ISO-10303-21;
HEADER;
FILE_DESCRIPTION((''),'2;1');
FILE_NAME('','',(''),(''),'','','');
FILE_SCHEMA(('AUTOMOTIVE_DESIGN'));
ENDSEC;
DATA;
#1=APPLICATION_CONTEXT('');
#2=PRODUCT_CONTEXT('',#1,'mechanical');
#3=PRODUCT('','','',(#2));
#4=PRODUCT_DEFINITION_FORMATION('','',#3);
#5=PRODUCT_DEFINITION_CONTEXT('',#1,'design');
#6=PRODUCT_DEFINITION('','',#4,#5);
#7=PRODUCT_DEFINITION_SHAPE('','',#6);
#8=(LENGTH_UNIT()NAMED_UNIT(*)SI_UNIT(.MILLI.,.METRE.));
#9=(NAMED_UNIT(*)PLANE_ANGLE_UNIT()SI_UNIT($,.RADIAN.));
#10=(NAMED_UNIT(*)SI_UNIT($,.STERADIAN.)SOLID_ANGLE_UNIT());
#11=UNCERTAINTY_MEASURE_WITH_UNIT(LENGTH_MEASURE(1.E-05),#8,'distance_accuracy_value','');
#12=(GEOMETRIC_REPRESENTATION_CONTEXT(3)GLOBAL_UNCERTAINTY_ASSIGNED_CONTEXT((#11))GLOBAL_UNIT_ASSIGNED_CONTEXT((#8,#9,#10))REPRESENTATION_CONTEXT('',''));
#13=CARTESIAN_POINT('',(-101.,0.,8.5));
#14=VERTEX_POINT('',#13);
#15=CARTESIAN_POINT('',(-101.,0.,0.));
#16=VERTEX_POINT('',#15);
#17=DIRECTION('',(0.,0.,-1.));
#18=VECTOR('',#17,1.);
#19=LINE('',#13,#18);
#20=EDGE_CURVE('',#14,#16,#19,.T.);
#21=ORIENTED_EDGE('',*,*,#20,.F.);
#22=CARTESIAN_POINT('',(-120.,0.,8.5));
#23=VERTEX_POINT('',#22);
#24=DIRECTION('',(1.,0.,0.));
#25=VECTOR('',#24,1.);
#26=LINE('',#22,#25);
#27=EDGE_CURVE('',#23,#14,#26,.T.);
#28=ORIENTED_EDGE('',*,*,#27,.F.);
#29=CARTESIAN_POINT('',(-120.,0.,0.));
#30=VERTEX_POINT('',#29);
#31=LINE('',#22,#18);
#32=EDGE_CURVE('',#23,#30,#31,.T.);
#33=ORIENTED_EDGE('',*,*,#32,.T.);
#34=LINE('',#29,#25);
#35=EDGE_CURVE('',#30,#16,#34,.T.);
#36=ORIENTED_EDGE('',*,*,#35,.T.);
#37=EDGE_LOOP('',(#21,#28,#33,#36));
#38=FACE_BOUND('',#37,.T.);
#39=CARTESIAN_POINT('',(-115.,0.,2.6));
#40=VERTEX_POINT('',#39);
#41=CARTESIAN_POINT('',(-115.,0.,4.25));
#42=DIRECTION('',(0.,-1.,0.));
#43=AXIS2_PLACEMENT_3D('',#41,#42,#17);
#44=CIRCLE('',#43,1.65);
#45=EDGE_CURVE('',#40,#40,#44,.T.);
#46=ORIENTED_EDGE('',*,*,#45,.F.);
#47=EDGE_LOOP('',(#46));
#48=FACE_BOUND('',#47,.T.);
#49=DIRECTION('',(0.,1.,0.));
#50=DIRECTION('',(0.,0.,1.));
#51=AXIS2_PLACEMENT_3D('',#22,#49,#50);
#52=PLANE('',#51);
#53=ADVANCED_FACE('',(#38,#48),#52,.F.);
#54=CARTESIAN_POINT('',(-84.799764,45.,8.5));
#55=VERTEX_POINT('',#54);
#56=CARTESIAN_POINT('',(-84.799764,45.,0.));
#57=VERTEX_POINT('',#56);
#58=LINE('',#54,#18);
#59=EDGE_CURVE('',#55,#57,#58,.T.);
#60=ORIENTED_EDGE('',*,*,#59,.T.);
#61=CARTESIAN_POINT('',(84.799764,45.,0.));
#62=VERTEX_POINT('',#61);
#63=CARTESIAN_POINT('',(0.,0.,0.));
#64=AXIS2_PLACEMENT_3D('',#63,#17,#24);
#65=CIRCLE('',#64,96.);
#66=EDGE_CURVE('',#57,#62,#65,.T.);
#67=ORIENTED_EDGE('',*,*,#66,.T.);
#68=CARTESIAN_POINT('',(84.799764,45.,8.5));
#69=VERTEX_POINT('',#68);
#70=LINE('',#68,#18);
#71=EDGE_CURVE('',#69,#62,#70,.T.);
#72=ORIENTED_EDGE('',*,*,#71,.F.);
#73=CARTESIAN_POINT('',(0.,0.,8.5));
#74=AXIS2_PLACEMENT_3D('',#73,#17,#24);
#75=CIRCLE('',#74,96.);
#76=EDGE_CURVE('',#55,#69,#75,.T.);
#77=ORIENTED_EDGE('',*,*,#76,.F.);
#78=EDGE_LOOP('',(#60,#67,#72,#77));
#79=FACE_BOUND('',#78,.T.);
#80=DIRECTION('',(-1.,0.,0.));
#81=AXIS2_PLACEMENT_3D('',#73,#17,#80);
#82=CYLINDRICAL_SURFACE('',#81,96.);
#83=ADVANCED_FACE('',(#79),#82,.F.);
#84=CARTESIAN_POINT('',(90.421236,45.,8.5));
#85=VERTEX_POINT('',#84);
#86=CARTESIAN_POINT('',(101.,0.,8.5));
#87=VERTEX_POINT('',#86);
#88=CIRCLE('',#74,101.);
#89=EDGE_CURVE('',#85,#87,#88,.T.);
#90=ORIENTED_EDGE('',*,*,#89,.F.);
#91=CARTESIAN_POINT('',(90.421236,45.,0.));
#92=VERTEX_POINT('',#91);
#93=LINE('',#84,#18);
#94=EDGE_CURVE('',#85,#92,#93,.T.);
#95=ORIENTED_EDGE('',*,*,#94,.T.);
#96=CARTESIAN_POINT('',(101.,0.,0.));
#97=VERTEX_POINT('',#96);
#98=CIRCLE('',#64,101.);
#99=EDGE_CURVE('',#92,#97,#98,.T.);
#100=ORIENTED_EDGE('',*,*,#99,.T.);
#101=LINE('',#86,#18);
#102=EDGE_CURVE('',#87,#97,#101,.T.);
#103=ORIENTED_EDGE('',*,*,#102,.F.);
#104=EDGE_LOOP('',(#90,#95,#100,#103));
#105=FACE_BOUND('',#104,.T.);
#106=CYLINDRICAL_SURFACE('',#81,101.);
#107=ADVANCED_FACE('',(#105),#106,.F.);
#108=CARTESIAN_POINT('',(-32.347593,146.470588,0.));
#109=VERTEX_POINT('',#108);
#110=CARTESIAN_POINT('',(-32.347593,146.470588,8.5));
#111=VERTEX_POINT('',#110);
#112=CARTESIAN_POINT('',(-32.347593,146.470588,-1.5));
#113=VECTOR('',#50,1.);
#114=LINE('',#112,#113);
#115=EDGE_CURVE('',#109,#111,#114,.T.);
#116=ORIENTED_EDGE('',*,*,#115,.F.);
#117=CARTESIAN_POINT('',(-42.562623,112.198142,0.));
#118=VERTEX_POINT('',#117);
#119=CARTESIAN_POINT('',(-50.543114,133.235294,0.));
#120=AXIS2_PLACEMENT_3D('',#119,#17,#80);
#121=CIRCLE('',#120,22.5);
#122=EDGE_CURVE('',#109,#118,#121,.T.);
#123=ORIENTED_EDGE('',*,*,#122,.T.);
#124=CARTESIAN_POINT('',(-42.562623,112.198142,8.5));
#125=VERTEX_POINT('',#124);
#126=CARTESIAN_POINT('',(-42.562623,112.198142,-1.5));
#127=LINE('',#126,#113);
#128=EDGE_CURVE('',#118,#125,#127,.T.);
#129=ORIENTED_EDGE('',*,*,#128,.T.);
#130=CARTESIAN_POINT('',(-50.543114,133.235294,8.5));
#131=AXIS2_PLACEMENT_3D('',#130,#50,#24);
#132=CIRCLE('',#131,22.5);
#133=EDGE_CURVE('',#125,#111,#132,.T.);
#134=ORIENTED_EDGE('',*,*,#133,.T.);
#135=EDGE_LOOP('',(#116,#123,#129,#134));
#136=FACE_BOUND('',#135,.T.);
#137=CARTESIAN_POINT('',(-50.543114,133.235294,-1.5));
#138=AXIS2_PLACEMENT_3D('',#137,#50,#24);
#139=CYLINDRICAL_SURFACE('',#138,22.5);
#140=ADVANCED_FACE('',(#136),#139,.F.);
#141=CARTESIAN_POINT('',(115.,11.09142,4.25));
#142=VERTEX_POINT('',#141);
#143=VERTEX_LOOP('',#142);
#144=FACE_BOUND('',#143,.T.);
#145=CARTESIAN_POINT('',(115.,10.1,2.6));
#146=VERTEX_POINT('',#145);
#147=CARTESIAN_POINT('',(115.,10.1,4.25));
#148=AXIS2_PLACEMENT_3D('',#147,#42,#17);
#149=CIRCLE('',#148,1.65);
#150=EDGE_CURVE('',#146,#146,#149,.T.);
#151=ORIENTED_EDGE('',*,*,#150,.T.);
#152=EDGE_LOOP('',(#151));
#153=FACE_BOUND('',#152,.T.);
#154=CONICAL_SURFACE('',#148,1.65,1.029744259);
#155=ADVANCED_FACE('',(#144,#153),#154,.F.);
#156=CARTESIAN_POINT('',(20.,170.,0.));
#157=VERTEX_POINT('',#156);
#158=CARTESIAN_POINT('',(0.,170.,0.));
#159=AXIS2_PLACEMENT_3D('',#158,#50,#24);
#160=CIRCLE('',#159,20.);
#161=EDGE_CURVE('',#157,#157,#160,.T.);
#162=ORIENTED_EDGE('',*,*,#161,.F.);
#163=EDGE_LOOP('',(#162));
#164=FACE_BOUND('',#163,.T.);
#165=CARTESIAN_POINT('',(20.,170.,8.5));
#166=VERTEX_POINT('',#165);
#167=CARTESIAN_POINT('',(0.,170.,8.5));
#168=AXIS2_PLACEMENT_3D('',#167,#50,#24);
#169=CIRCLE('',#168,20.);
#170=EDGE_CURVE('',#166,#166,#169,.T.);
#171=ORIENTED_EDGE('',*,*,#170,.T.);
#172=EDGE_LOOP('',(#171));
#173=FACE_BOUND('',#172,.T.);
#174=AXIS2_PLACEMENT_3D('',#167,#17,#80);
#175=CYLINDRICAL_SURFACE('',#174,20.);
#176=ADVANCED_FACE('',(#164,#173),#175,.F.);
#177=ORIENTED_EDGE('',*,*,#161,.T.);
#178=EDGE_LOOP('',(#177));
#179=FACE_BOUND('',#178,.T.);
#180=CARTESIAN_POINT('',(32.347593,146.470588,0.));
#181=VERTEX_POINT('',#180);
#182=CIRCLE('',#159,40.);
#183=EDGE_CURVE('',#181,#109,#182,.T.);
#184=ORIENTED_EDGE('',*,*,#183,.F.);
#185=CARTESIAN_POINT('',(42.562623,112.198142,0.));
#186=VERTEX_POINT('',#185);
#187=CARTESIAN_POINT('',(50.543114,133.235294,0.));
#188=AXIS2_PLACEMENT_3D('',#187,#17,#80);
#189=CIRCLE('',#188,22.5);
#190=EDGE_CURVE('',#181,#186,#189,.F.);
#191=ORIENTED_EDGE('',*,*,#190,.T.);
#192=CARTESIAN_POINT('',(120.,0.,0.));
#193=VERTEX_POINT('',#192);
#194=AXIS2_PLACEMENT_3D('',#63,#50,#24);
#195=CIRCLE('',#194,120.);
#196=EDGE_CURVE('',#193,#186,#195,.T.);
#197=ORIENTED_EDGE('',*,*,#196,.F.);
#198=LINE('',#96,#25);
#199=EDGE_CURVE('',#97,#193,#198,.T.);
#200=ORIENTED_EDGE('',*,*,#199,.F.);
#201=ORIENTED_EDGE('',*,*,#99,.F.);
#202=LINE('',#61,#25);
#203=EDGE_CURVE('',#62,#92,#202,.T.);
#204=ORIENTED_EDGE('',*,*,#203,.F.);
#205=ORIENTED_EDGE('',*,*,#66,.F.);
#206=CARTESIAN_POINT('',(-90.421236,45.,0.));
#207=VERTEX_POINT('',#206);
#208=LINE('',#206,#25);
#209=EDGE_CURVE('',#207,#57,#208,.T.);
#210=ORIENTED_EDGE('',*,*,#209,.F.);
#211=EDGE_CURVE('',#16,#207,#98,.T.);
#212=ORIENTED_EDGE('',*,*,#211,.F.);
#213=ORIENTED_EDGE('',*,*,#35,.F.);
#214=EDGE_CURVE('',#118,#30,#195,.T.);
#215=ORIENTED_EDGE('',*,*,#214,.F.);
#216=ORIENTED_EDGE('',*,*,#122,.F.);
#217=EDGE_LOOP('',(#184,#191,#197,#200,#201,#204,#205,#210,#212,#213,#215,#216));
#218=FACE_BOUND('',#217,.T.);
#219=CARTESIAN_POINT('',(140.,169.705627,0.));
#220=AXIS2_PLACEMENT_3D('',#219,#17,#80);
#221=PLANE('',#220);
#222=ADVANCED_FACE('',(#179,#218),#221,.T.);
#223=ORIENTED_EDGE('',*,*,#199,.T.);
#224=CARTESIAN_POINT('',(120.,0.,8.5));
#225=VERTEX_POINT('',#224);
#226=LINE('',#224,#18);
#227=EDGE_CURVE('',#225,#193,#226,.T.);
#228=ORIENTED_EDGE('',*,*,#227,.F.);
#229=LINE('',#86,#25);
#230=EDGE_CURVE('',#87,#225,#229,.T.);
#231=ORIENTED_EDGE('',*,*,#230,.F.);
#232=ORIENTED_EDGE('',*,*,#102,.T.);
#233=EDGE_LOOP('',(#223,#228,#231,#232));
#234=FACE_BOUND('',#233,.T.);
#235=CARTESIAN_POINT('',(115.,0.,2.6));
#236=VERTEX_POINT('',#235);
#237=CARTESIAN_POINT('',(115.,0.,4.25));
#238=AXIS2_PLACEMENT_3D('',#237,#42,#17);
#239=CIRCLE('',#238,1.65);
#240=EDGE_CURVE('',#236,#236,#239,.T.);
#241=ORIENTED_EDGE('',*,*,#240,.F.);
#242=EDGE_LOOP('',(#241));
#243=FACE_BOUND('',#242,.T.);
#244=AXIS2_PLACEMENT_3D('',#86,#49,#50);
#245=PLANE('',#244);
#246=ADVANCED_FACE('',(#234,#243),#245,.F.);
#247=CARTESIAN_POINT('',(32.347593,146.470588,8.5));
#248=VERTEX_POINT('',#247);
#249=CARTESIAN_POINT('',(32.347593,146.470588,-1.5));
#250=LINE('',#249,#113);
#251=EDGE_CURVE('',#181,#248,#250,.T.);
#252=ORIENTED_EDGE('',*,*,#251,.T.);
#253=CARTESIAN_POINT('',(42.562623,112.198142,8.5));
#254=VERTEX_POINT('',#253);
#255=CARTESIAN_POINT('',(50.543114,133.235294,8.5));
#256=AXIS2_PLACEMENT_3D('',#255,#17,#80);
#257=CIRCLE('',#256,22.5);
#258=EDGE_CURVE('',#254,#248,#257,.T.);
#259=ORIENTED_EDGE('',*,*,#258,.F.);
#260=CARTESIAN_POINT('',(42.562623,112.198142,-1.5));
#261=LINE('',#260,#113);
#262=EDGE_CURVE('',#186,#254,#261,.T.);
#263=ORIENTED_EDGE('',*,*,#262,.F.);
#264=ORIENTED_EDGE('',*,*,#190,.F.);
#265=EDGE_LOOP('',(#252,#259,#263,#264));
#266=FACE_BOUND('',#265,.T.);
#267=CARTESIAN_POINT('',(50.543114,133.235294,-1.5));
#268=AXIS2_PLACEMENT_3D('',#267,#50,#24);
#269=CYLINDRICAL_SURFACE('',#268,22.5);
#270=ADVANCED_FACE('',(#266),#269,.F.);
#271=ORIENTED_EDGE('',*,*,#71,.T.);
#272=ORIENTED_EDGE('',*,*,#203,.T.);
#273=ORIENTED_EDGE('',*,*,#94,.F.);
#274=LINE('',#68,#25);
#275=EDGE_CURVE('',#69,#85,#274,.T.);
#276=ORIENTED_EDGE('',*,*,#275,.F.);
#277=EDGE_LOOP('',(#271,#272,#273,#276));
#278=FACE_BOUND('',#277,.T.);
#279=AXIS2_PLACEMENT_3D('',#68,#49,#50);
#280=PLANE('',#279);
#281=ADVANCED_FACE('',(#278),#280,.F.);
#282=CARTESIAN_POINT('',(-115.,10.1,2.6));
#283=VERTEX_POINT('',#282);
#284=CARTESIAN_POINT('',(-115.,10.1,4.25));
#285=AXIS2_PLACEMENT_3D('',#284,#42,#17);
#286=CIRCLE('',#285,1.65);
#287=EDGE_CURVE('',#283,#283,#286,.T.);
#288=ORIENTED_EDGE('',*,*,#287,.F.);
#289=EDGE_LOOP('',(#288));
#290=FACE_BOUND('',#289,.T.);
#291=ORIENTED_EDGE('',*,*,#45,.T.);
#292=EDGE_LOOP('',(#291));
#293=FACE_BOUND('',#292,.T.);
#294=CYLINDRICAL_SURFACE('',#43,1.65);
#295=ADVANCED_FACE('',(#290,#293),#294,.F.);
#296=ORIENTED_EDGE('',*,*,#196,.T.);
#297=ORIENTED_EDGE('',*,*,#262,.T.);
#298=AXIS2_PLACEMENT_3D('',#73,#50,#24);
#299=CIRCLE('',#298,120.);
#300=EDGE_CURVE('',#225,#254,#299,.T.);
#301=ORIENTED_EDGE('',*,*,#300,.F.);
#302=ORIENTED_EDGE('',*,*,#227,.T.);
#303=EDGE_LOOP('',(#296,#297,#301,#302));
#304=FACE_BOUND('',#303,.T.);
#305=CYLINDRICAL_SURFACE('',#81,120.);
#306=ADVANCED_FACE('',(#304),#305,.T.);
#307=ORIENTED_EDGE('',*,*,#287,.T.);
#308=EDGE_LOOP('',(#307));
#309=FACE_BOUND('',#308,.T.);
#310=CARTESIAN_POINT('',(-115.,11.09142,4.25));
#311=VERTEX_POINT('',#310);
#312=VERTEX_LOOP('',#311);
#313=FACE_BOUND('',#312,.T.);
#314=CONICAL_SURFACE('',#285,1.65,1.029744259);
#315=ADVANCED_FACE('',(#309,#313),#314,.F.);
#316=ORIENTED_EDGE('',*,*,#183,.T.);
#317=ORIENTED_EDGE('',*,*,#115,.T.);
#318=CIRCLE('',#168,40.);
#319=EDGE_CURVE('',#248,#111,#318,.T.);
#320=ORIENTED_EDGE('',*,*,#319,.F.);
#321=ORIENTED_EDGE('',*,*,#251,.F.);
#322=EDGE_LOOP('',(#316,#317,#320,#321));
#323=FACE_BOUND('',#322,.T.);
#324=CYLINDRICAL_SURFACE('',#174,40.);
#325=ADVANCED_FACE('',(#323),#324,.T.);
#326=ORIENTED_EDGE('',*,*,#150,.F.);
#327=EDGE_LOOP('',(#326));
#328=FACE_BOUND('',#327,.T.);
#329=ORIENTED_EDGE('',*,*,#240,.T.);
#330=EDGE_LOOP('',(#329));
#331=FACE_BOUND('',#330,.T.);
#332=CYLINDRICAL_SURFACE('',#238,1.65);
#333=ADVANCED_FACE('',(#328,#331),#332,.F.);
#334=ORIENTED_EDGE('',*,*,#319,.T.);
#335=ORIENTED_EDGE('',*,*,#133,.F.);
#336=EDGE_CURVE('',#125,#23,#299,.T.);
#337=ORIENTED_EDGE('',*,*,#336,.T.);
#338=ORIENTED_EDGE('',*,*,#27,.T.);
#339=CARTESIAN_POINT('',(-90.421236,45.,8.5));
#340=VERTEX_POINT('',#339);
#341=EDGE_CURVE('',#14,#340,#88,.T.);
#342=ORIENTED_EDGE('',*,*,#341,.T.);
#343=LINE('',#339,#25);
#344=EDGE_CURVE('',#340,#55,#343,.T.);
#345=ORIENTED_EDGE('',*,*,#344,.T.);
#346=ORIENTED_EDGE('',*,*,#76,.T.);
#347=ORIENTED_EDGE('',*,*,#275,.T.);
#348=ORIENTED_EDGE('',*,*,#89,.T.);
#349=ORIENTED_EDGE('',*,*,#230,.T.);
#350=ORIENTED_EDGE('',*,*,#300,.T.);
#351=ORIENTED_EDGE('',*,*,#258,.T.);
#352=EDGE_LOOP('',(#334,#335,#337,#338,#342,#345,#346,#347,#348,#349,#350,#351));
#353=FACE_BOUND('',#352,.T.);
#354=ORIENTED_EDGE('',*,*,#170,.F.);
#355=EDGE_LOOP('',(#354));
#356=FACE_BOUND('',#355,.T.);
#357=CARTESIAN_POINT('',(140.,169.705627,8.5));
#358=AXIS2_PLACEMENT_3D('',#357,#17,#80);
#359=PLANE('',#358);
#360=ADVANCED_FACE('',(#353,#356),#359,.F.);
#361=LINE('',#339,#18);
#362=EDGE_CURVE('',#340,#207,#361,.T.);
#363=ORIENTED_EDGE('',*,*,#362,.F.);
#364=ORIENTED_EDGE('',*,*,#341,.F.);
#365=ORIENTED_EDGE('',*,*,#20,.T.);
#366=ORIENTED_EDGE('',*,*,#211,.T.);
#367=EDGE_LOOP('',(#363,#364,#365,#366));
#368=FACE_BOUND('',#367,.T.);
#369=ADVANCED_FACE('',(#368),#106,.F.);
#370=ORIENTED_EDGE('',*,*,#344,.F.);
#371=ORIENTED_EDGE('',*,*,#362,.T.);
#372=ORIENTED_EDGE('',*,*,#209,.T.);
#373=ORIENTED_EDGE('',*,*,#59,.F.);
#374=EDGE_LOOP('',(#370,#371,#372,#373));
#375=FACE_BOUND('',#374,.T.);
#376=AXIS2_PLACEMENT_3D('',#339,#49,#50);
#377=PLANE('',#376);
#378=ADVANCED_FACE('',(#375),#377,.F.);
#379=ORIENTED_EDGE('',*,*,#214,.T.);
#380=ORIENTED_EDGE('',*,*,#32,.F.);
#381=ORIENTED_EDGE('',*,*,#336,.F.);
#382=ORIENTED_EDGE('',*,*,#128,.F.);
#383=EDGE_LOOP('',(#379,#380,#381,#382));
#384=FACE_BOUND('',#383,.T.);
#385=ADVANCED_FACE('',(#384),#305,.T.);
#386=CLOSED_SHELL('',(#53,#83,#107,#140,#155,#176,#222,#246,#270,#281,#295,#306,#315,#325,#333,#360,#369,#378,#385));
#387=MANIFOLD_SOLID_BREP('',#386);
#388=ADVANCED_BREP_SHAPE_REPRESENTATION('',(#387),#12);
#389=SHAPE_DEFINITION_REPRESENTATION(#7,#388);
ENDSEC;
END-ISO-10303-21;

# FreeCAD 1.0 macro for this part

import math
import FreeCAD as App
import Part
import Sketcher
from FreeCAD import Vector
Q = App.Units.Quantity

doc = App.newDocument("Part")
body = doc.addObject("PartDesign::Body", "Body")

# Sketch on XY plane
sketch1 = body.newObject("Sketcher::SketchObject", "Sketch")
sketch1.AttachmentSupport = (doc.getObject("XY_Plane"), [""])
sketch1.MapMode = "FlatFace"
sketch1.addGeometry(Part.LineSegment(Vector(-40, 170, 0), Vector(-40, 169.705627, 0)), False)
sketch1.addGeometry(Part.ArcOfCircle(Part.Circle(Vector(-140, 169.705627, 0), Vector(0, 0, 1), 100), math.radians(-50.478804), math.radians(0)), False)
sketch1.addGeometry(Part.ArcOfCircle(Part.Circle(Vector(0, 0, 0), Vector(0, 0, 1), 120), math.radians(129.521196), math.radians(180)), False)
sketch1.addGeometry(Part.LineSegment(Vector(-120, 0, 0), Vector(-101, 0, 0)), False)
sketch1.addGeometry(Part.ArcOfCircle(Part.Circle(Vector(0, 0, 0), Vector(0, 0, 1), 101), math.radians(153.541816), math.radians(180)), False)
sketch1.addGeometry(Part.LineSegment(Vector(-90.421236, 45, 0), Vector(-84.799764, 45, 0)), False)
sketch1.addGeometry(Part.ArcOfCircle(Part.Circle(Vector(0, 0, 0), Vector(0, 0, 1), 96), math.radians(27.953187), math.radians(152.046813)), False)
sketch1.addGeometry(Part.LineSegment(Vector(84.799764, 45, 0), Vector(90.421236, 45, 0)), False)
sketch1.addGeometry(Part.ArcOfCircle(Part.Circle(Vector(0, 0, 0), Vector(0, 0, 1), 101), math.radians(0), math.radians(26.458184)), False)
sketch1.addGeometry(Part.LineSegment(Vector(101, 0, 0), Vector(120, 0, 0)), False)
sketch1.addGeometry(Part.ArcOfCircle(Part.Circle(Vector(0, 0, 0), Vector(0, 0, 1), 120), math.radians(0), math.radians(50.478804)), False)
sketch1.addGeometry(Part.ArcOfCircle(Part.Circle(Vector(140, 169.705627, 0), Vector(0, 0, 1), 100), math.radians(-180), math.radians(-129.521196)), False)
sketch1.addGeometry(Part.LineSegment(Vector(40, 169.705627, 0), Vector(40, 170, 0)), False)
sketch1.addGeometry(Part.ArcOfCircle(Part.Circle(Vector(0, 170, 0), Vector(0, 0, 1), 40), math.radians(0), math.radians(180)), False)
sketch1.addGeometry(Part.Circle(Vector(0, 170, 0), Vector(0, 0, 1), 20), False)
sketch1.addConstraint(Sketcher.Constraint("Tangent", 0, 2, 1, 2))
sketch1.addConstraint(Sketcher.Constraint("Tangent", 1, 1, 2, 1))
sketch1.addConstraint(Sketcher.Constraint("Coincident", 2, 2, 3, 1))
sketch1.addConstraint(Sketcher.Constraint("Coincident", 3, 2, 4, 2))
sketch1.addConstraint(Sketcher.Constraint("Coincident", 4, 1, 5, 1))
sketch1.addConstraint(Sketcher.Constraint("Coincident", 5, 2, 6, 2))
sketch1.addConstraint(Sketcher.Constraint("Coincident", 6, 1, 7, 1))
sketch1.addConstraint(Sketcher.Constraint("Coincident", 7, 2, 8, 2))
sketch1.addConstraint(Sketcher.Constraint("Coincident", 8, 1, 9, 1))
sketch1.addConstraint(Sketcher.Constraint("Coincident", 9, 2, 10, 1))
sketch1.addConstraint(Sketcher.Constraint("Tangent", 10, 2, 11, 2))
sketch1.addConstraint(Sketcher.Constraint("Tangent", 11, 1, 12, 1))
sketch1.addConstraint(Sketcher.Constraint("Tangent", 12, 2, 13, 1))
sketch1.addConstraint(Sketcher.Constraint("Tangent", 13, 2, 0, 1))
sketch1.addConstraint(Sketcher.Constraint("Vertical", 0))
sketch1.addConstraint(Sketcher.Constraint("Horizontal", 3))
sketch1.addConstraint(Sketcher.Constraint("Horizontal", 5))
sketch1.addConstraint(Sketcher.Constraint("Horizontal", 7))
sketch1.addConstraint(Sketcher.Constraint("Horizontal", 9))
sketch1.addConstraint(Sketcher.Constraint("Vertical", 12))
sketch1.addConstraint(Sketcher.Constraint("Coincident", 2, 3, -1, 1))
sketch1.addConstraint(Sketcher.Constraint("Coincident", 4, 3, -1, 1))
sketch1.addConstraint(Sketcher.Constraint("Coincident", 6, 3, -1, 1))
sketch1.addConstraint(Sketcher.Constraint("Coincident", 8, 3, -1, 1))
sketch1.addConstraint(Sketcher.Constraint("Coincident", 10, 3, -1, 1))
sketch1.addConstraint(Sketcher.Constraint("Coincident", 14, 3, 13, 3))
sketch1.addConstraint(Sketcher.Constraint("Equal", 4, 8))
sketch1.addConstraint(Sketcher.Constraint("Equal", 2, 10))
sketch1.addConstraint(Sketcher.Constraint("Equal", 1, 11))
sketch1.addConstraint(Sketcher.Constraint("PointOnObject", 13, 3, -2))
sketch1.addConstraint(Sketcher.Constraint("PointOnObject", 2, 2, -1))
sketch1.addConstraint(Sketcher.Constraint("PointOnObject", 8, 1, -1))
sketch1.addConstraint(Sketcher.Constraint("Horizontal", 5, 2, 6, 1))
sketch1.addConstraint(Sketcher.Constraint("Diameter", 14, Q("40 mm")))
sketch1.addConstraint(Sketcher.Constraint("Radius", 1, Q("100 mm")))
sketch1.addConstraint(Sketcher.Constraint("Radius", 2, Q("120 mm")))
sketch1.addConstraint(Sketcher.Constraint("Radius", 4, Q("101 mm")))
sketch1.addConstraint(Sketcher.Constraint("Radius", 6, Q("96 mm")))
sketch1.addConstraint(Sketcher.Constraint("Radius", 13, Q("40 mm")))
sketch1.addConstraint(Sketcher.Constraint("DistanceY", -1, 1, 13, 3, Q("170 mm")))
sketch1.addConstraint(Sketcher.Constraint("DistanceY", -1, 1, 4, 1, Q("45 mm")))
pad1 = body.newObject("PartDesign::Pad", "Pad")
pad1.Profile = sketch1
pad1.Length = 8.5

# Sketch on XZ plane
sketch2 = body.newObject("Sketcher::SketchObject", "Sketch001")
sketch2.AttachmentSupport = (doc.getObject("XZ_Plane"), [""])
sketch2.MapMode = "FlatFace"
sketch2.addGeometry(Part.Circle(Vector(-115, 4.25, 0), Vector(0, 0, 1), 1.65), False)
sketch2.addGeometry(Part.Circle(Vector(115, 4.25, 0), Vector(0, 0, 1), 1.65), False)
sketch2.addConstraint(Sketcher.Constraint("Equal", 0, 1))
sketch2.addConstraint(Sketcher.Constraint("Symmetric", 0, 3, 1, 3, -2))
sketch2.addConstraint(Sketcher.Constraint("Diameter", 0, Q("3.3 mm")))
sketch2.addConstraint(Sketcher.Constraint("DistanceX", 0, 3, -1, 1, Q("115 mm")))
sketch2.addConstraint(Sketcher.Constraint("DistanceY", -1, 1, 0, 3, Q("4.25 mm")))
doc.recompute()
hole = body.newObject("PartDesign::Hole", "Hole")
hole.Profile = sketch2
hole.ThreadType = "None"
hole.Diameter = 3.3
hole.DepthType = "Dimension"
hole.Depth = 10.1
hole.DrillPoint = "Angled"
hole.DrillPointAngle = 118

# Sketch on XY plane
sketch3 = body.newObject("Sketcher::SketchObject", "Sketch002")
sketch3.AttachmentSupport = (doc.getObject("XY_Plane"), [""])
sketch3.MapMode = "FlatFace"
sketch3.AttachmentOffset = App.Placement(Vector(0, 0, -1.5), App.Rotation())
sketch3.addGeometry(Part.LineSegment(Vector(-40, 170, 0), Vector(-40, 169.705627, 0)), False)
sketch3.addGeometry(Part.ArcOfCircle(Part.Circle(Vector(-140, 169.705627, 0), Vector(0, 0, 1), 100), math.radians(-50.478804), math.radians(0)), False)
sketch3.addGeometry(Part.ArcOfCircle(Part.Circle(Vector(0, 0, 0), Vector(0, 0, 1), 120), math.radians(110.774356), math.radians(129.521196)), False)
sketch3.addGeometry(Part.ArcOfCircle(Part.Circle(Vector(-50.543114, 133.235294, 0), Vector(0, 0, 1), 22.5), math.radians(-69.225644), math.radians(36.031879)), False)
sketch3.addGeometry(Part.ArcOfCircle(Part.Circle(Vector(0, 170, 0), Vector(0, 0, 1), 40), math.radians(180), math.radians(216.031879)), False)
sketch3.addConstraint(Sketcher.Constraint("Tangent", 0, 2, 1, 2))
sketch3.addConstraint(Sketcher.Constraint("Tangent", 1, 1, 2, 2))
sketch3.addConstraint(Sketcher.Constraint("Tangent", 2, 1, 3, 1))
sketch3.addConstraint(Sketcher.Constraint("Tangent", 3, 2, 4, 2))
sketch3.addConstraint(Sketcher.Constraint("Tangent", 4, 1, 0, 1))
sketch3.addConstraint(Sketcher.Constraint("Vertical", 0))
sketch3.addConstraint(Sketcher.Constraint("Coincident", 2, 3, -1, 1))
sketch3.addConstraint(Sketcher.Constraint("PointOnObject", 4, 3, -2))
sketch3.addConstraint(Sketcher.Constraint("Radius", 1, Q("100 mm")))
sketch3.addConstraint(Sketcher.Constraint("Radius", 2, Q("120 mm")))
sketch3.addConstraint(Sketcher.Constraint("Radius", 4, Q("40 mm")))
sketch3.addConstraint(Sketcher.Constraint("Radius", 3, Q("22.5 mm")))
sketch3.addConstraint(Sketcher.Constraint("DistanceY", -1, 1, 4, 3, Q("170 mm")))
pocket1 = body.newObject("PartDesign::Pocket", "Pocket")
pocket1.Profile = sketch3
pocket1.Length = 10
pocket1.Reversed = True
doc.recompute()

mirrored = body.newObject("PartDesign::Mirrored", "Mirrored")
mirrored.Originals = [pocket1]
mirrored.MirrorPlane = (doc.getObject("YZ_Plane"), [""])
body.Tip = mirrored

doc.recompute()
